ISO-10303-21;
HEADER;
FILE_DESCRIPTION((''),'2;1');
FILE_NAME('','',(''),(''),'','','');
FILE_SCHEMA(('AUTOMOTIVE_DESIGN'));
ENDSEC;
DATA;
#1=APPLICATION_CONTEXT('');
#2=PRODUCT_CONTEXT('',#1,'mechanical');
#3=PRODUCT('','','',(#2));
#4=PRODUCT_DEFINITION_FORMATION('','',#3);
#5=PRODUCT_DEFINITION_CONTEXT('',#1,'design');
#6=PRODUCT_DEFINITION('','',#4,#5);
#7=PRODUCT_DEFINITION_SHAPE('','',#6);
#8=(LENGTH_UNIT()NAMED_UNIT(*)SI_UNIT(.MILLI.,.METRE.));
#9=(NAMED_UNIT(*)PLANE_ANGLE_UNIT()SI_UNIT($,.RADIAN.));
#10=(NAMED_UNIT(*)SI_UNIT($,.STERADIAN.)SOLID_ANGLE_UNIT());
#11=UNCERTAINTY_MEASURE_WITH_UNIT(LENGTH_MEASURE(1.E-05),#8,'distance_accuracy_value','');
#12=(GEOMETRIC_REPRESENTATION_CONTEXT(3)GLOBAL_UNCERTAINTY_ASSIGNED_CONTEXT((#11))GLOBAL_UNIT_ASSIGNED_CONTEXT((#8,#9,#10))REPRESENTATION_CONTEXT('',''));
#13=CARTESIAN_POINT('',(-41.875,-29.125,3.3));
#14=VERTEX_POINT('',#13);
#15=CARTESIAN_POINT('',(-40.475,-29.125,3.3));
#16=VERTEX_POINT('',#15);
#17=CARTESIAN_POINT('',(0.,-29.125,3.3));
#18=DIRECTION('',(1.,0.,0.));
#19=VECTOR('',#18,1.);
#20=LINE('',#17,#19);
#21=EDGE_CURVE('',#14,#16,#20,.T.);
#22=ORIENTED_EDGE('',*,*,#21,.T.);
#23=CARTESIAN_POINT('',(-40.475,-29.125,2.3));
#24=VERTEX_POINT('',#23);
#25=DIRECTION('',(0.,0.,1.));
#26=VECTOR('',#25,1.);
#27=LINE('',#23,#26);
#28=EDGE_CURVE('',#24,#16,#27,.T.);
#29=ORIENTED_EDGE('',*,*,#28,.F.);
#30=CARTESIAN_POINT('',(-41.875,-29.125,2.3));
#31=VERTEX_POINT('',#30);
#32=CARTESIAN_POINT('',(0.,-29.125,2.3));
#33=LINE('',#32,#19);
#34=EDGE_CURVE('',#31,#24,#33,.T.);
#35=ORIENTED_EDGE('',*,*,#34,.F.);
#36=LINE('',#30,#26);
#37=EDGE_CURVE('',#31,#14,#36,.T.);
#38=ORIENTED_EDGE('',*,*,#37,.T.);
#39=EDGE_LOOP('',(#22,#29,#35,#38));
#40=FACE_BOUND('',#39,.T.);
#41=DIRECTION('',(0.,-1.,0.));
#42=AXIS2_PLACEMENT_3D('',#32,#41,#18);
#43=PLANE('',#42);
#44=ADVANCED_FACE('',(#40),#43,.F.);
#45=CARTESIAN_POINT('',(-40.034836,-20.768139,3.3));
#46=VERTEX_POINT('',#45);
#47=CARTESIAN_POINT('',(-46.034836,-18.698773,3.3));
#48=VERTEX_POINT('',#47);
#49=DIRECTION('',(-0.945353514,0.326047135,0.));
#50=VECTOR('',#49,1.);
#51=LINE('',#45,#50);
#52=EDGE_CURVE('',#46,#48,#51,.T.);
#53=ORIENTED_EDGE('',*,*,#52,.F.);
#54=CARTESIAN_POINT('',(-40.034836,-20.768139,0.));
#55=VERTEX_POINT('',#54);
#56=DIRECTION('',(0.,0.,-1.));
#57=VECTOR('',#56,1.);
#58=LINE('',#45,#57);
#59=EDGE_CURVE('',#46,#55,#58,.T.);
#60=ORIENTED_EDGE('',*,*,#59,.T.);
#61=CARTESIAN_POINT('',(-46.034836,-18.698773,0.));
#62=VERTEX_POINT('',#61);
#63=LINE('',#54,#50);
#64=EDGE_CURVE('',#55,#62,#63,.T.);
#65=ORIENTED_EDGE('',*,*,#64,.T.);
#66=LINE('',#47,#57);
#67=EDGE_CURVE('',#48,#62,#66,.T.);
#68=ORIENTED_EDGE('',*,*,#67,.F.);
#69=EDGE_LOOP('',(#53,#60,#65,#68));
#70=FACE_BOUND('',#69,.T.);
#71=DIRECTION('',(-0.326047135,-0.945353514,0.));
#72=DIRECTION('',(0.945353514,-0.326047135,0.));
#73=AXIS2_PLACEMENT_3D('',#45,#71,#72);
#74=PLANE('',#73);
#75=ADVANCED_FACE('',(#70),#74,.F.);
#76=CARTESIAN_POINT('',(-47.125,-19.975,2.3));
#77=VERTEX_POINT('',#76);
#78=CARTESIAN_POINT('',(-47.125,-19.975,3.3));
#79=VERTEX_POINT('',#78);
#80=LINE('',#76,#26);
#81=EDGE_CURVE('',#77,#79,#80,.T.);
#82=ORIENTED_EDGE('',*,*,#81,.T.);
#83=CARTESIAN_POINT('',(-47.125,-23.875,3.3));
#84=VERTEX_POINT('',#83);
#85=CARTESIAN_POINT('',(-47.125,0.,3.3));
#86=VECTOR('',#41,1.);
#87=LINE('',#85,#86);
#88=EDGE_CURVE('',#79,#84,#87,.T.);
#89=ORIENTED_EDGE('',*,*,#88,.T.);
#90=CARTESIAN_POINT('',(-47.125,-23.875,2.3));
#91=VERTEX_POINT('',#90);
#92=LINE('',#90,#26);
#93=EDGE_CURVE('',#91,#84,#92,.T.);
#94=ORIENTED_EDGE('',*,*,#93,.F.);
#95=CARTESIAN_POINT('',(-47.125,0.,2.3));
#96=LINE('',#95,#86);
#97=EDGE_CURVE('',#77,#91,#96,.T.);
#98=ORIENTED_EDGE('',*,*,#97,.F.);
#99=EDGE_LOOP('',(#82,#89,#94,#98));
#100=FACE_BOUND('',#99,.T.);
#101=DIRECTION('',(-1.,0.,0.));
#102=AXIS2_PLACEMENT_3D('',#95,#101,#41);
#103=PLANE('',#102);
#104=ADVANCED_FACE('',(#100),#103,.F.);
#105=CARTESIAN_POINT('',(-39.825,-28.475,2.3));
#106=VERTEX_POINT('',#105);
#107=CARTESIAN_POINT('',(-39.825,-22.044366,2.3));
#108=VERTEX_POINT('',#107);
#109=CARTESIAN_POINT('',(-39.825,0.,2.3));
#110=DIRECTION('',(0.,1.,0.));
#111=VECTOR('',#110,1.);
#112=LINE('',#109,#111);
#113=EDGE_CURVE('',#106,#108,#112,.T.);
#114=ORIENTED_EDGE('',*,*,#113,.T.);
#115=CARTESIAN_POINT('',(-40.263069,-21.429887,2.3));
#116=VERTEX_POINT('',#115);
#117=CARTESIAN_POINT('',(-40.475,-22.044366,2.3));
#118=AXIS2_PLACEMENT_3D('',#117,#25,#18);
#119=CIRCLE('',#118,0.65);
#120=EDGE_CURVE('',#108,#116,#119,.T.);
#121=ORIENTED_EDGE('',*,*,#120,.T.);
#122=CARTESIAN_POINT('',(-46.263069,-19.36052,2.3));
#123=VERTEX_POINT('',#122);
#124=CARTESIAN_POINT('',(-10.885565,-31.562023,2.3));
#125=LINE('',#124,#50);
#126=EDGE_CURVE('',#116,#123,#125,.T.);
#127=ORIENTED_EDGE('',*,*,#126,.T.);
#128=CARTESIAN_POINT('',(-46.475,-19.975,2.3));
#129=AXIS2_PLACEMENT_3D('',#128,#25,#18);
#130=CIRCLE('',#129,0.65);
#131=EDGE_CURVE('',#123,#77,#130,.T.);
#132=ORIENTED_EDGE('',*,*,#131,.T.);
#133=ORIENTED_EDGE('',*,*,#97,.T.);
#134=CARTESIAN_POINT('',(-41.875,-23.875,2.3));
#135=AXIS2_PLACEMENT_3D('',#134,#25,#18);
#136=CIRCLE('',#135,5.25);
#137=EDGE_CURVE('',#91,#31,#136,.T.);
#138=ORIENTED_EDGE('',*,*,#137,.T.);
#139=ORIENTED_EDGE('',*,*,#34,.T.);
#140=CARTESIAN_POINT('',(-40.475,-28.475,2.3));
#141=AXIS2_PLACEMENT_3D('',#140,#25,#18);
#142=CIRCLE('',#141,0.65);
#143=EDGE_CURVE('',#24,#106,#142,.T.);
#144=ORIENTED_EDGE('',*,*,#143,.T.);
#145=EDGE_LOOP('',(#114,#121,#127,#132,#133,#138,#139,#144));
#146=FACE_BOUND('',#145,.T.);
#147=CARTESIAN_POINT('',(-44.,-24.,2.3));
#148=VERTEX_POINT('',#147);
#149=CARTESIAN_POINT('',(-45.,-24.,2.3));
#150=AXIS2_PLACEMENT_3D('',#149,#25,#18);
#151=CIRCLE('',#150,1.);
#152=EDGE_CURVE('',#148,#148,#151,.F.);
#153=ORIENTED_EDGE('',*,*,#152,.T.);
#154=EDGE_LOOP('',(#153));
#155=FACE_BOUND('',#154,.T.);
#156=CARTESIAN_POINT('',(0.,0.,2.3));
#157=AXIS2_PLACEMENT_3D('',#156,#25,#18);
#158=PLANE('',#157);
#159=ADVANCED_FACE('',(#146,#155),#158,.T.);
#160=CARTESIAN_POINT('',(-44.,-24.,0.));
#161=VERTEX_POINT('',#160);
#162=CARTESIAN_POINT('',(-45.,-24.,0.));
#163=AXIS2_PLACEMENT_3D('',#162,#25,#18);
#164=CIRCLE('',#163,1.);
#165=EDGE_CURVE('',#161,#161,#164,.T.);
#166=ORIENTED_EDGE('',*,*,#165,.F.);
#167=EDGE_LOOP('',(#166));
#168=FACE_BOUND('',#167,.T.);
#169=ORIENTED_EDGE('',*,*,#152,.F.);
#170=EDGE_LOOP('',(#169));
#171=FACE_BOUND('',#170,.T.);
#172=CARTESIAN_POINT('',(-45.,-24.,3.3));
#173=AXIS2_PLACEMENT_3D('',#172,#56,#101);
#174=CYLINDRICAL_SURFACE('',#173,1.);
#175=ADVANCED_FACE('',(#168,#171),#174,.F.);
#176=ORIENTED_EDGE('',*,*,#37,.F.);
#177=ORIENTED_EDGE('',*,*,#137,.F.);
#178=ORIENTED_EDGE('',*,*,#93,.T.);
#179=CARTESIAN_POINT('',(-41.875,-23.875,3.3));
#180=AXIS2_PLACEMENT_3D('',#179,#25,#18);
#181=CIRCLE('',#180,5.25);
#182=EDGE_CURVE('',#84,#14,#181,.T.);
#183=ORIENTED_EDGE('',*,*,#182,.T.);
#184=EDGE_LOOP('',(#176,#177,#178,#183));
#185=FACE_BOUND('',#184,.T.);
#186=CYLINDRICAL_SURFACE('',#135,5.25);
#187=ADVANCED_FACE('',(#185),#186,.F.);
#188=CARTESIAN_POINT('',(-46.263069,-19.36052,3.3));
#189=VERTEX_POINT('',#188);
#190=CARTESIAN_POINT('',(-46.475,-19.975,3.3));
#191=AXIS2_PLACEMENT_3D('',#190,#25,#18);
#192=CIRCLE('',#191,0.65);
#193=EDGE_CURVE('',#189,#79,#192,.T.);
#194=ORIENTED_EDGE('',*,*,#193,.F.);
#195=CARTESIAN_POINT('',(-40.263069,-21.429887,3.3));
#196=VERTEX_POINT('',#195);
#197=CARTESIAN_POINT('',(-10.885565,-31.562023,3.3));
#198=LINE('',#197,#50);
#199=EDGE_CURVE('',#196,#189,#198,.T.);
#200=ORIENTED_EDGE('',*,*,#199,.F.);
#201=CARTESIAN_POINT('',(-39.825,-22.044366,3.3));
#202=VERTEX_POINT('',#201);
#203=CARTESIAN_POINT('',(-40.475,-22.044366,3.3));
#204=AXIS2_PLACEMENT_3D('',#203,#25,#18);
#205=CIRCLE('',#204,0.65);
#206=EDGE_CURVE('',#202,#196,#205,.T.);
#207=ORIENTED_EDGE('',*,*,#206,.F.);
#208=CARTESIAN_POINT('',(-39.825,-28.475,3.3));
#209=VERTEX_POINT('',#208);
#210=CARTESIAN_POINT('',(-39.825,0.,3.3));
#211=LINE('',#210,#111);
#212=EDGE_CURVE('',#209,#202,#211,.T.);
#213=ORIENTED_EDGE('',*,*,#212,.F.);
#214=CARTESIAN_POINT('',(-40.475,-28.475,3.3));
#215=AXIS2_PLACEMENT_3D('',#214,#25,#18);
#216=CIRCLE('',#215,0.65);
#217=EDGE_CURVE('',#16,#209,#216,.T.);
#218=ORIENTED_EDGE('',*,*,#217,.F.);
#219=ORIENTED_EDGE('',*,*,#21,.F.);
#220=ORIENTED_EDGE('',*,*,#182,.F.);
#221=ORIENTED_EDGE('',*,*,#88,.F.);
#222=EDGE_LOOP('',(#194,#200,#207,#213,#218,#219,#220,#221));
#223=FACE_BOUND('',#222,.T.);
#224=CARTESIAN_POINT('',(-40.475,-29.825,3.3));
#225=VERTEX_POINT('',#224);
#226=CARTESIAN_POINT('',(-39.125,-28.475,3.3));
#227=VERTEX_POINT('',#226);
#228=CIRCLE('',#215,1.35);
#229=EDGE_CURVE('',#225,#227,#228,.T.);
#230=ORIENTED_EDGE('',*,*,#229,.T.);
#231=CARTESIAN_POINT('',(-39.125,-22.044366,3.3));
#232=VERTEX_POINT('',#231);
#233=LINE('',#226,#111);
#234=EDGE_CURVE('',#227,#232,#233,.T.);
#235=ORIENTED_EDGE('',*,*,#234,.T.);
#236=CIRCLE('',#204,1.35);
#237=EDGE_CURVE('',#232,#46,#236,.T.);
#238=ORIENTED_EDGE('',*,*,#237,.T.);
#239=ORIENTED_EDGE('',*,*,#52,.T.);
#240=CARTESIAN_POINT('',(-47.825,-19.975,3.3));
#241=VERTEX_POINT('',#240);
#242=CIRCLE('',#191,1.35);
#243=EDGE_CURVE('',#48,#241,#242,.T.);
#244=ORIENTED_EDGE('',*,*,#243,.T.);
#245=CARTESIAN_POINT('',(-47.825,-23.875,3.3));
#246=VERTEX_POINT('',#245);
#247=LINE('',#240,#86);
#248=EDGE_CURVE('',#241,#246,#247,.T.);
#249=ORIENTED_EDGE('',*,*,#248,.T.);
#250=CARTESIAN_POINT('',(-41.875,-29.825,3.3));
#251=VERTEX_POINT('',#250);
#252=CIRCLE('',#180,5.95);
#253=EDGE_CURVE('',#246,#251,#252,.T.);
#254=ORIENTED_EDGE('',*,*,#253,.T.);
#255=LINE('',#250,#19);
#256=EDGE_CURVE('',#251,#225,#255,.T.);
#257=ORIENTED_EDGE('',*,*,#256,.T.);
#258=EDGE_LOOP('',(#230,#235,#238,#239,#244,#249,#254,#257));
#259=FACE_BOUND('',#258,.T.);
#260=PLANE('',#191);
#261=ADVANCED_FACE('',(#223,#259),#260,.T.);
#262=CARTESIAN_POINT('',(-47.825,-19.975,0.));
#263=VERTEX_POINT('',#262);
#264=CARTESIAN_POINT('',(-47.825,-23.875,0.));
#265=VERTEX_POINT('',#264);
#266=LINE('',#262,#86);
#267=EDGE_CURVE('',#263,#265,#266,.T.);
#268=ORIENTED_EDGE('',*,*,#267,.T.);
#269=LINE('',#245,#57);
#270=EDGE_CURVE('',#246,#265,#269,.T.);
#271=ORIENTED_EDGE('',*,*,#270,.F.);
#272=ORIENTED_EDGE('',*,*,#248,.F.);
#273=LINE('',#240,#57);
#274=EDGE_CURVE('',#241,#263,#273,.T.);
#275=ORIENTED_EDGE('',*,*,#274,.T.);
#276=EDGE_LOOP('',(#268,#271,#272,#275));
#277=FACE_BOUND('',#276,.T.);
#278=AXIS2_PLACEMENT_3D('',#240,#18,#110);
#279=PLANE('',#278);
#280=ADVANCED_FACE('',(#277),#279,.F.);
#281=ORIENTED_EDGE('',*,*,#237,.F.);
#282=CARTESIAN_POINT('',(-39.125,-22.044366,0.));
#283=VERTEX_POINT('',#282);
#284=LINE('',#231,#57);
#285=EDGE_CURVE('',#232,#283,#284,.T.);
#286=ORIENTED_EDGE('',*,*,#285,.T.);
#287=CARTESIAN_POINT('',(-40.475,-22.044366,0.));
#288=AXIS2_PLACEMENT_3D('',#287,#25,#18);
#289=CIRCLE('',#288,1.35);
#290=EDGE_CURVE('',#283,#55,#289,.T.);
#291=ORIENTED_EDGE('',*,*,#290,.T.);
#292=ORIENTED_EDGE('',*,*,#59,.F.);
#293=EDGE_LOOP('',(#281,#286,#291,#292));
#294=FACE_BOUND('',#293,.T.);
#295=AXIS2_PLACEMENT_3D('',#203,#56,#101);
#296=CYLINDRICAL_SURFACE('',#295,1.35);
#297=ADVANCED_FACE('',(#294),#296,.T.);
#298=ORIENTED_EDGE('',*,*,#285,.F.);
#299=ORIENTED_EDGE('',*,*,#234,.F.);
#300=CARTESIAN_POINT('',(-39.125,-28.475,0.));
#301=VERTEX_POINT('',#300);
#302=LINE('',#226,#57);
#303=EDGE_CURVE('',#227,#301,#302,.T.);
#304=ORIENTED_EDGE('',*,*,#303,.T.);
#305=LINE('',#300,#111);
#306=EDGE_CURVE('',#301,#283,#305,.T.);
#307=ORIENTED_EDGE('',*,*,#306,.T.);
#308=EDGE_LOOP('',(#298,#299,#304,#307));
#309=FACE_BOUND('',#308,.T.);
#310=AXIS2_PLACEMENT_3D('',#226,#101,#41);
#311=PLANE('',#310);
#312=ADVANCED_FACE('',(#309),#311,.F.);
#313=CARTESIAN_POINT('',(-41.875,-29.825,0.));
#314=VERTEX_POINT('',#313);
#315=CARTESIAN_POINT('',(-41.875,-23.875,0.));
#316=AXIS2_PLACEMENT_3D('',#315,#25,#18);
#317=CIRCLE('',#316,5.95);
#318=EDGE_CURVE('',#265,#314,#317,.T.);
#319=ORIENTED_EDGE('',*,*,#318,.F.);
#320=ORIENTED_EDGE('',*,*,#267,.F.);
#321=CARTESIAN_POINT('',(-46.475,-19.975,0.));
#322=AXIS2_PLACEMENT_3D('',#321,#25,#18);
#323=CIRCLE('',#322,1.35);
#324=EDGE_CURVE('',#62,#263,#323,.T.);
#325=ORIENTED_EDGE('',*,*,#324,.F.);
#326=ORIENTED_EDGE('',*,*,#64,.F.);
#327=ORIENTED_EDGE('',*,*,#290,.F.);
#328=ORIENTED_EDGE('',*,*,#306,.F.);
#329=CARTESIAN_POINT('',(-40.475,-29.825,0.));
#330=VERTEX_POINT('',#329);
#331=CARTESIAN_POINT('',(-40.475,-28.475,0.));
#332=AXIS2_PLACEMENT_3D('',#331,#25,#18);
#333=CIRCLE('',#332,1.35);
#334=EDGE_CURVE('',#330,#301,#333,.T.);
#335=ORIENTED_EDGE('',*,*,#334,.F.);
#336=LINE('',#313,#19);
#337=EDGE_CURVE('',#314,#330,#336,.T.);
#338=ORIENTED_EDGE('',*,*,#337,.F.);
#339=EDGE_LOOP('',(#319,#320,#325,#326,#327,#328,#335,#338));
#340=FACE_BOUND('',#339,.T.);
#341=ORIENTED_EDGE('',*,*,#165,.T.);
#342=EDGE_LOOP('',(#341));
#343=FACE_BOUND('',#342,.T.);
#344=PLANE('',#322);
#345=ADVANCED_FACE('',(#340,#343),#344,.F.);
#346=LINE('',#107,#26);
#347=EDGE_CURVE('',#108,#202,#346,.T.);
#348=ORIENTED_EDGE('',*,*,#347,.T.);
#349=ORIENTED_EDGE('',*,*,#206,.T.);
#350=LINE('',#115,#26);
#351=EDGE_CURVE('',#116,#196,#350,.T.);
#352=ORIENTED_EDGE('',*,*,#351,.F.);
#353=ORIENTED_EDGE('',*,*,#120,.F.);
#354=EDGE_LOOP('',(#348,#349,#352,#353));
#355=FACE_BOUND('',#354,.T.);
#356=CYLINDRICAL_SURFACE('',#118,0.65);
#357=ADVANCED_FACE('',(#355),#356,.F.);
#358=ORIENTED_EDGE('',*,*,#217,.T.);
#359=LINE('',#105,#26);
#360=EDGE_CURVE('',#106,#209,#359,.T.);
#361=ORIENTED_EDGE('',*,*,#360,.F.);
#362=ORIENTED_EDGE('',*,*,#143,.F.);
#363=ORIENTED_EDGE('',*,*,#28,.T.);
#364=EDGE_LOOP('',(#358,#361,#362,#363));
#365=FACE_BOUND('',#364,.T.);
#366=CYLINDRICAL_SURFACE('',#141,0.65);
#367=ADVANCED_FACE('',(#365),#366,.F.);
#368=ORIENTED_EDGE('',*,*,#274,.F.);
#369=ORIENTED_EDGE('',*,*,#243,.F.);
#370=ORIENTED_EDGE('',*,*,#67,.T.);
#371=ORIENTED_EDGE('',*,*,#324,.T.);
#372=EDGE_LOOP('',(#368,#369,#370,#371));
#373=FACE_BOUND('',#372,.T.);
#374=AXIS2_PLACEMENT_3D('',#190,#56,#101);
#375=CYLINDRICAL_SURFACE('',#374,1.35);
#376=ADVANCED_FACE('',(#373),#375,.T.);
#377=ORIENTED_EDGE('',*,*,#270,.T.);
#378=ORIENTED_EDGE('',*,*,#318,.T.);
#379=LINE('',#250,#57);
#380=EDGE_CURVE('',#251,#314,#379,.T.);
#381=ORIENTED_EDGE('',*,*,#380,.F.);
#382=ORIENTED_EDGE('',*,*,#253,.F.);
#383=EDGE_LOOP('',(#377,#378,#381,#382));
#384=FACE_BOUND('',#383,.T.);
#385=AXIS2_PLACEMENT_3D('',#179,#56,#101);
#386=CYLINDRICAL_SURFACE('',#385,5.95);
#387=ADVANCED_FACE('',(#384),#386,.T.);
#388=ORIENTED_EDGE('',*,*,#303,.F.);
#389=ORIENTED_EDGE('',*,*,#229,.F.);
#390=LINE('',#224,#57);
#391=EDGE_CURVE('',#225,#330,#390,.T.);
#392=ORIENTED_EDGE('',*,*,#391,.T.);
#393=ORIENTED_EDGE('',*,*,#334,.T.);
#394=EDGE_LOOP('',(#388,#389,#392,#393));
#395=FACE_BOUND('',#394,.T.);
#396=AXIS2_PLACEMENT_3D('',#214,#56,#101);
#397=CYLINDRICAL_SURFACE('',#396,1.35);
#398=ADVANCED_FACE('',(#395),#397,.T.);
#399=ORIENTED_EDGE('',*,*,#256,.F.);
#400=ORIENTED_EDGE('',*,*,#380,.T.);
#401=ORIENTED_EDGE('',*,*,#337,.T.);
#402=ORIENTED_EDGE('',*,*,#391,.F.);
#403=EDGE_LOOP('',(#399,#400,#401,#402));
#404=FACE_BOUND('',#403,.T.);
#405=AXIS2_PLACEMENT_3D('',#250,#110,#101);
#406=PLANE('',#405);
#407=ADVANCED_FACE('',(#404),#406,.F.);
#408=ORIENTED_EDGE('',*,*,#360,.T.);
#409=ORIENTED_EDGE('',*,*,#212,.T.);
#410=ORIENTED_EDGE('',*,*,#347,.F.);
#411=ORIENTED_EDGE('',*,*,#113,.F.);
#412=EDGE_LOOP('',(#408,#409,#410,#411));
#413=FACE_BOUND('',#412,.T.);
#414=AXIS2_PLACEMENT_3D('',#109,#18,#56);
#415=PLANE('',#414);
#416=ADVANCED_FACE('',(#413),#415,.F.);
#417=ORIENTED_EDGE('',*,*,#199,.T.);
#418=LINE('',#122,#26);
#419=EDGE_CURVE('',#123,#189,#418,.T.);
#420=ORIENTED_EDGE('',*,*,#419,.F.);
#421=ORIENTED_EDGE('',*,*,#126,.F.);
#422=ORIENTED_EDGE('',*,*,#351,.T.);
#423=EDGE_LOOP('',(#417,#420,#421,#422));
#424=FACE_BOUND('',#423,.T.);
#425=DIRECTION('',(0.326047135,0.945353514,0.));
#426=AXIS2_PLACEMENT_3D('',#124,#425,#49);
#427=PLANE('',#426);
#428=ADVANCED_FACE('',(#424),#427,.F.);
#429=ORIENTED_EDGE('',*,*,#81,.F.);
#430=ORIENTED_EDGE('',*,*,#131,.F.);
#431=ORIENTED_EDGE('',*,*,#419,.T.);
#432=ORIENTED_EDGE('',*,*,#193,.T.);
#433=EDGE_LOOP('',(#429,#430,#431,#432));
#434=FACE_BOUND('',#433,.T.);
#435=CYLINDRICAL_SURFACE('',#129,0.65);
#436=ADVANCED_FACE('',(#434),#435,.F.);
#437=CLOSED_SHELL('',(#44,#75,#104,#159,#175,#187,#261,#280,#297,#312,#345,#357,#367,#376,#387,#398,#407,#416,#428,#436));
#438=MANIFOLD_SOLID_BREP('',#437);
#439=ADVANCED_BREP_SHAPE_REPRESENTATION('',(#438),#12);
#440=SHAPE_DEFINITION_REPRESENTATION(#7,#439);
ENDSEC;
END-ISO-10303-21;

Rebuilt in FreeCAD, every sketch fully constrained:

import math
import FreeCAD as App
import Part
import Sketcher

V = App.Vector

doc = App.newDocument("Part")
body = doc.addObject("PartDesign::Body", "Body")

sketch1 = doc.addObject("Sketcher::SketchObject", "Sketch")
body.addObject(sketch1)
sketch1.AttachmentSupport = (doc.XY_Plane, [""])
sketch1.MapMode = "FlatFace"
sketch1.addGeometry([
    Part.LineSegment(V(-47.8, -20, 0), V(-47.8, -23.9, 0)),
    Part.ArcOfCircle(Part.Circle(V(-41.9, -23.9, 0), V(0, 0, 1), 6), math.radians(180), math.radians(270)),
    Part.LineSegment(V(-41.9, -29.8, 0), V(-40.5, -29.8, 0)),
    Part.ArcOfCircle(Part.Circle(V(-40.5, -28.5, 0), V(0, 0, 1), 1.3), math.radians(-90), math.radians(0)),
    Part.LineSegment(V(-39.1, -28.5, 0), V(-39.1, -22, 0)),
    Part.ArcOfCircle(Part.Circle(V(-40.5, -22, 0), V(0, 0, 1), 1.4), math.radians(0), math.radians(71)),
    Part.LineSegment(V(-40, -20.8, 0), V(-46, -18.7, 0)),
    Part.ArcOfCircle(Part.Circle(V(-46.5, -20, 0), V(0, 0, 1), 1.4), math.radians(71), math.radians(180)),
    Part.Circle(V(-45, -24, 0), V(0, 0, 1), 1),
], False)
sketch1.addConstraint([
    Sketcher.Constraint("Tangent", 0, 2, 1, 1),
    Sketcher.Constraint("Tangent", 1, 2, 2, 1),
    Sketcher.Constraint("Tangent", 2, 2, 3, 1),
    Sketcher.Constraint("Tangent", 3, 2, 4, 1),
    Sketcher.Constraint("Tangent", 4, 2, 5, 1),
    Sketcher.Constraint("Tangent", 5, 2, 6, 1),
    Sketcher.Constraint("Tangent", 6, 2, 7, 1),
    Sketcher.Constraint("Tangent", 7, 2, 0, 1),
    Sketcher.Constraint("Vertical", 0),
    Sketcher.Constraint("Horizontal", 2),
    Sketcher.Constraint("Vertical", 4),
    Sketcher.Constraint("Equal", 3, 5),
    Sketcher.Constraint("Equal", 5, 7),
    Sketcher.Constraint("Diameter", 8, 2.0),
    Sketcher.Constraint("Radius", 1, 5.95),
    Sketcher.Constraint("Radius", 3, 1.35),
    Sketcher.Constraint("DistanceX", 2, 1, 2, 2, 1.4),
    Sketcher.Constraint("DistanceY", 0, 2, 0, 1, 3.9),
    Sketcher.Constraint("DistanceX", 8, 3, -1, 1, 45.0),
    Sketcher.Constraint("DistanceY", 8, 3, -1, 1, 24.0),
    Sketcher.Constraint("DistanceX", 1, 3, -1, 1, 41.875),
    Sketcher.Constraint("DistanceY", 1, 3, -1, 1, 23.875),
    Sketcher.Constraint("DistanceY", 4, 1, 4, 2, 6.430634),
])
pad1 = doc.addObject("PartDesign::Pad", "Pad")
body.addObject(pad1)
pad1.Profile = sketch1
pad1.Length = 3.3

sketch2 = doc.addObject("Sketcher::SketchObject", "Sketch001")
body.addObject(sketch2)
sketch2.AttachmentSupport = (doc.XY_Plane, [""])
sketch2.MapMode = "FlatFace"
sketch2.AttachmentOffset = App.Placement(V(0, 0, 2.3), App.Rotation())
sketch2.addGeometry([
    Part.LineSegment(V(-40.3, -21.4, 0), V(-46.3, -19.4, 0)),
    Part.ArcOfCircle(Part.Circle(V(-46.5, -20, 0), V(0, 0, 1), 0.7), math.radians(71), math.radians(180)),
    Part.LineSegment(V(-47.1, -20, 0), V(-47.1, -23.9, 0)),
    Part.ArcOfCircle(Part.Circle(V(-41.9, -23.9, 0), V(0, 0, 1), 5.3), math.radians(-180), math.radians(-90)),
    Part.LineSegment(V(-41.9, -29.1, 0), V(-40.5, -29.1, 0)),
    Part.ArcOfCircle(Part.Circle(V(-40.5, -28.5, 0), V(0, 0, 1), 0.6), math.radians(-90), math.radians(0)),
    Part.LineSegment(V(-39.8, -28.5, 0), V(-39.8, -22, 0)),
    Part.ArcOfCircle(Part.Circle(V(-40.5, -22, 0), V(0, 0, 1), 0.7), math.radians(0), math.radians(71)),
    Part.Circle(V(-45, -24, 0), V(0, 0, 1), 1),
], False)
sketch2.addConstraint([
    Sketcher.Constraint("Tangent", 0, 2, 1, 1),
    Sketcher.Constraint("Tangent", 1, 2, 2, 1),
    Sketcher.Constraint("Tangent", 2, 2, 3, 1),
    Sketcher.Constraint("Tangent", 3, 2, 4, 1),
    Sketcher.Constraint("Tangent", 4, 2, 5, 1),
    Sketcher.Constraint("Tangent", 5, 2, 6, 1),
    Sketcher.Constraint("Tangent", 6, 2, 7, 1),
    Sketcher.Constraint("Tangent", 7, 2, 0, 1),
    Sketcher.Constraint("Vertical", 2),
    Sketcher.Constraint("Horizontal", 4),
    Sketcher.Constraint("Vertical", 6),
    Sketcher.Constraint("Equal", 1, 5),
    Sketcher.Constraint("Equal", 5, 7),
    Sketcher.Constraint("Diameter", 8, 2.0),
    Sketcher.Constraint("Radius", 1, 0.65),
    Sketcher.Constraint("Radius", 3, 5.25),
    Sketcher.Constraint("DistanceX", 4, 1, 4, 2, 1.4),
    Sketcher.Constraint("DistanceY", 2, 2, 2, 1, 3.9),
    Sketcher.Constraint("DistanceX", 8, 3, -1, 1, 45.0),
    Sketcher.Constraint("DistanceY", 8, 3, -1, 1, 24.0),
    Sketcher.Constraint("DistanceX", 1, 3, -1, 1, 46.475),
    Sketcher.Constraint("DistanceY", 1, 3, -1, 1, 19.975),
    Sketcher.Constraint("DistanceY", 6, 1, 6, 2, 6.430634),
])
pocket1 = doc.addObject("PartDesign::Pocket", "Pocket")
body.addObject(pocket1)
pocket1.Profile = sketch2
pocket1.Length = 1
pocket1.Reversed = True

doc.recompute()
